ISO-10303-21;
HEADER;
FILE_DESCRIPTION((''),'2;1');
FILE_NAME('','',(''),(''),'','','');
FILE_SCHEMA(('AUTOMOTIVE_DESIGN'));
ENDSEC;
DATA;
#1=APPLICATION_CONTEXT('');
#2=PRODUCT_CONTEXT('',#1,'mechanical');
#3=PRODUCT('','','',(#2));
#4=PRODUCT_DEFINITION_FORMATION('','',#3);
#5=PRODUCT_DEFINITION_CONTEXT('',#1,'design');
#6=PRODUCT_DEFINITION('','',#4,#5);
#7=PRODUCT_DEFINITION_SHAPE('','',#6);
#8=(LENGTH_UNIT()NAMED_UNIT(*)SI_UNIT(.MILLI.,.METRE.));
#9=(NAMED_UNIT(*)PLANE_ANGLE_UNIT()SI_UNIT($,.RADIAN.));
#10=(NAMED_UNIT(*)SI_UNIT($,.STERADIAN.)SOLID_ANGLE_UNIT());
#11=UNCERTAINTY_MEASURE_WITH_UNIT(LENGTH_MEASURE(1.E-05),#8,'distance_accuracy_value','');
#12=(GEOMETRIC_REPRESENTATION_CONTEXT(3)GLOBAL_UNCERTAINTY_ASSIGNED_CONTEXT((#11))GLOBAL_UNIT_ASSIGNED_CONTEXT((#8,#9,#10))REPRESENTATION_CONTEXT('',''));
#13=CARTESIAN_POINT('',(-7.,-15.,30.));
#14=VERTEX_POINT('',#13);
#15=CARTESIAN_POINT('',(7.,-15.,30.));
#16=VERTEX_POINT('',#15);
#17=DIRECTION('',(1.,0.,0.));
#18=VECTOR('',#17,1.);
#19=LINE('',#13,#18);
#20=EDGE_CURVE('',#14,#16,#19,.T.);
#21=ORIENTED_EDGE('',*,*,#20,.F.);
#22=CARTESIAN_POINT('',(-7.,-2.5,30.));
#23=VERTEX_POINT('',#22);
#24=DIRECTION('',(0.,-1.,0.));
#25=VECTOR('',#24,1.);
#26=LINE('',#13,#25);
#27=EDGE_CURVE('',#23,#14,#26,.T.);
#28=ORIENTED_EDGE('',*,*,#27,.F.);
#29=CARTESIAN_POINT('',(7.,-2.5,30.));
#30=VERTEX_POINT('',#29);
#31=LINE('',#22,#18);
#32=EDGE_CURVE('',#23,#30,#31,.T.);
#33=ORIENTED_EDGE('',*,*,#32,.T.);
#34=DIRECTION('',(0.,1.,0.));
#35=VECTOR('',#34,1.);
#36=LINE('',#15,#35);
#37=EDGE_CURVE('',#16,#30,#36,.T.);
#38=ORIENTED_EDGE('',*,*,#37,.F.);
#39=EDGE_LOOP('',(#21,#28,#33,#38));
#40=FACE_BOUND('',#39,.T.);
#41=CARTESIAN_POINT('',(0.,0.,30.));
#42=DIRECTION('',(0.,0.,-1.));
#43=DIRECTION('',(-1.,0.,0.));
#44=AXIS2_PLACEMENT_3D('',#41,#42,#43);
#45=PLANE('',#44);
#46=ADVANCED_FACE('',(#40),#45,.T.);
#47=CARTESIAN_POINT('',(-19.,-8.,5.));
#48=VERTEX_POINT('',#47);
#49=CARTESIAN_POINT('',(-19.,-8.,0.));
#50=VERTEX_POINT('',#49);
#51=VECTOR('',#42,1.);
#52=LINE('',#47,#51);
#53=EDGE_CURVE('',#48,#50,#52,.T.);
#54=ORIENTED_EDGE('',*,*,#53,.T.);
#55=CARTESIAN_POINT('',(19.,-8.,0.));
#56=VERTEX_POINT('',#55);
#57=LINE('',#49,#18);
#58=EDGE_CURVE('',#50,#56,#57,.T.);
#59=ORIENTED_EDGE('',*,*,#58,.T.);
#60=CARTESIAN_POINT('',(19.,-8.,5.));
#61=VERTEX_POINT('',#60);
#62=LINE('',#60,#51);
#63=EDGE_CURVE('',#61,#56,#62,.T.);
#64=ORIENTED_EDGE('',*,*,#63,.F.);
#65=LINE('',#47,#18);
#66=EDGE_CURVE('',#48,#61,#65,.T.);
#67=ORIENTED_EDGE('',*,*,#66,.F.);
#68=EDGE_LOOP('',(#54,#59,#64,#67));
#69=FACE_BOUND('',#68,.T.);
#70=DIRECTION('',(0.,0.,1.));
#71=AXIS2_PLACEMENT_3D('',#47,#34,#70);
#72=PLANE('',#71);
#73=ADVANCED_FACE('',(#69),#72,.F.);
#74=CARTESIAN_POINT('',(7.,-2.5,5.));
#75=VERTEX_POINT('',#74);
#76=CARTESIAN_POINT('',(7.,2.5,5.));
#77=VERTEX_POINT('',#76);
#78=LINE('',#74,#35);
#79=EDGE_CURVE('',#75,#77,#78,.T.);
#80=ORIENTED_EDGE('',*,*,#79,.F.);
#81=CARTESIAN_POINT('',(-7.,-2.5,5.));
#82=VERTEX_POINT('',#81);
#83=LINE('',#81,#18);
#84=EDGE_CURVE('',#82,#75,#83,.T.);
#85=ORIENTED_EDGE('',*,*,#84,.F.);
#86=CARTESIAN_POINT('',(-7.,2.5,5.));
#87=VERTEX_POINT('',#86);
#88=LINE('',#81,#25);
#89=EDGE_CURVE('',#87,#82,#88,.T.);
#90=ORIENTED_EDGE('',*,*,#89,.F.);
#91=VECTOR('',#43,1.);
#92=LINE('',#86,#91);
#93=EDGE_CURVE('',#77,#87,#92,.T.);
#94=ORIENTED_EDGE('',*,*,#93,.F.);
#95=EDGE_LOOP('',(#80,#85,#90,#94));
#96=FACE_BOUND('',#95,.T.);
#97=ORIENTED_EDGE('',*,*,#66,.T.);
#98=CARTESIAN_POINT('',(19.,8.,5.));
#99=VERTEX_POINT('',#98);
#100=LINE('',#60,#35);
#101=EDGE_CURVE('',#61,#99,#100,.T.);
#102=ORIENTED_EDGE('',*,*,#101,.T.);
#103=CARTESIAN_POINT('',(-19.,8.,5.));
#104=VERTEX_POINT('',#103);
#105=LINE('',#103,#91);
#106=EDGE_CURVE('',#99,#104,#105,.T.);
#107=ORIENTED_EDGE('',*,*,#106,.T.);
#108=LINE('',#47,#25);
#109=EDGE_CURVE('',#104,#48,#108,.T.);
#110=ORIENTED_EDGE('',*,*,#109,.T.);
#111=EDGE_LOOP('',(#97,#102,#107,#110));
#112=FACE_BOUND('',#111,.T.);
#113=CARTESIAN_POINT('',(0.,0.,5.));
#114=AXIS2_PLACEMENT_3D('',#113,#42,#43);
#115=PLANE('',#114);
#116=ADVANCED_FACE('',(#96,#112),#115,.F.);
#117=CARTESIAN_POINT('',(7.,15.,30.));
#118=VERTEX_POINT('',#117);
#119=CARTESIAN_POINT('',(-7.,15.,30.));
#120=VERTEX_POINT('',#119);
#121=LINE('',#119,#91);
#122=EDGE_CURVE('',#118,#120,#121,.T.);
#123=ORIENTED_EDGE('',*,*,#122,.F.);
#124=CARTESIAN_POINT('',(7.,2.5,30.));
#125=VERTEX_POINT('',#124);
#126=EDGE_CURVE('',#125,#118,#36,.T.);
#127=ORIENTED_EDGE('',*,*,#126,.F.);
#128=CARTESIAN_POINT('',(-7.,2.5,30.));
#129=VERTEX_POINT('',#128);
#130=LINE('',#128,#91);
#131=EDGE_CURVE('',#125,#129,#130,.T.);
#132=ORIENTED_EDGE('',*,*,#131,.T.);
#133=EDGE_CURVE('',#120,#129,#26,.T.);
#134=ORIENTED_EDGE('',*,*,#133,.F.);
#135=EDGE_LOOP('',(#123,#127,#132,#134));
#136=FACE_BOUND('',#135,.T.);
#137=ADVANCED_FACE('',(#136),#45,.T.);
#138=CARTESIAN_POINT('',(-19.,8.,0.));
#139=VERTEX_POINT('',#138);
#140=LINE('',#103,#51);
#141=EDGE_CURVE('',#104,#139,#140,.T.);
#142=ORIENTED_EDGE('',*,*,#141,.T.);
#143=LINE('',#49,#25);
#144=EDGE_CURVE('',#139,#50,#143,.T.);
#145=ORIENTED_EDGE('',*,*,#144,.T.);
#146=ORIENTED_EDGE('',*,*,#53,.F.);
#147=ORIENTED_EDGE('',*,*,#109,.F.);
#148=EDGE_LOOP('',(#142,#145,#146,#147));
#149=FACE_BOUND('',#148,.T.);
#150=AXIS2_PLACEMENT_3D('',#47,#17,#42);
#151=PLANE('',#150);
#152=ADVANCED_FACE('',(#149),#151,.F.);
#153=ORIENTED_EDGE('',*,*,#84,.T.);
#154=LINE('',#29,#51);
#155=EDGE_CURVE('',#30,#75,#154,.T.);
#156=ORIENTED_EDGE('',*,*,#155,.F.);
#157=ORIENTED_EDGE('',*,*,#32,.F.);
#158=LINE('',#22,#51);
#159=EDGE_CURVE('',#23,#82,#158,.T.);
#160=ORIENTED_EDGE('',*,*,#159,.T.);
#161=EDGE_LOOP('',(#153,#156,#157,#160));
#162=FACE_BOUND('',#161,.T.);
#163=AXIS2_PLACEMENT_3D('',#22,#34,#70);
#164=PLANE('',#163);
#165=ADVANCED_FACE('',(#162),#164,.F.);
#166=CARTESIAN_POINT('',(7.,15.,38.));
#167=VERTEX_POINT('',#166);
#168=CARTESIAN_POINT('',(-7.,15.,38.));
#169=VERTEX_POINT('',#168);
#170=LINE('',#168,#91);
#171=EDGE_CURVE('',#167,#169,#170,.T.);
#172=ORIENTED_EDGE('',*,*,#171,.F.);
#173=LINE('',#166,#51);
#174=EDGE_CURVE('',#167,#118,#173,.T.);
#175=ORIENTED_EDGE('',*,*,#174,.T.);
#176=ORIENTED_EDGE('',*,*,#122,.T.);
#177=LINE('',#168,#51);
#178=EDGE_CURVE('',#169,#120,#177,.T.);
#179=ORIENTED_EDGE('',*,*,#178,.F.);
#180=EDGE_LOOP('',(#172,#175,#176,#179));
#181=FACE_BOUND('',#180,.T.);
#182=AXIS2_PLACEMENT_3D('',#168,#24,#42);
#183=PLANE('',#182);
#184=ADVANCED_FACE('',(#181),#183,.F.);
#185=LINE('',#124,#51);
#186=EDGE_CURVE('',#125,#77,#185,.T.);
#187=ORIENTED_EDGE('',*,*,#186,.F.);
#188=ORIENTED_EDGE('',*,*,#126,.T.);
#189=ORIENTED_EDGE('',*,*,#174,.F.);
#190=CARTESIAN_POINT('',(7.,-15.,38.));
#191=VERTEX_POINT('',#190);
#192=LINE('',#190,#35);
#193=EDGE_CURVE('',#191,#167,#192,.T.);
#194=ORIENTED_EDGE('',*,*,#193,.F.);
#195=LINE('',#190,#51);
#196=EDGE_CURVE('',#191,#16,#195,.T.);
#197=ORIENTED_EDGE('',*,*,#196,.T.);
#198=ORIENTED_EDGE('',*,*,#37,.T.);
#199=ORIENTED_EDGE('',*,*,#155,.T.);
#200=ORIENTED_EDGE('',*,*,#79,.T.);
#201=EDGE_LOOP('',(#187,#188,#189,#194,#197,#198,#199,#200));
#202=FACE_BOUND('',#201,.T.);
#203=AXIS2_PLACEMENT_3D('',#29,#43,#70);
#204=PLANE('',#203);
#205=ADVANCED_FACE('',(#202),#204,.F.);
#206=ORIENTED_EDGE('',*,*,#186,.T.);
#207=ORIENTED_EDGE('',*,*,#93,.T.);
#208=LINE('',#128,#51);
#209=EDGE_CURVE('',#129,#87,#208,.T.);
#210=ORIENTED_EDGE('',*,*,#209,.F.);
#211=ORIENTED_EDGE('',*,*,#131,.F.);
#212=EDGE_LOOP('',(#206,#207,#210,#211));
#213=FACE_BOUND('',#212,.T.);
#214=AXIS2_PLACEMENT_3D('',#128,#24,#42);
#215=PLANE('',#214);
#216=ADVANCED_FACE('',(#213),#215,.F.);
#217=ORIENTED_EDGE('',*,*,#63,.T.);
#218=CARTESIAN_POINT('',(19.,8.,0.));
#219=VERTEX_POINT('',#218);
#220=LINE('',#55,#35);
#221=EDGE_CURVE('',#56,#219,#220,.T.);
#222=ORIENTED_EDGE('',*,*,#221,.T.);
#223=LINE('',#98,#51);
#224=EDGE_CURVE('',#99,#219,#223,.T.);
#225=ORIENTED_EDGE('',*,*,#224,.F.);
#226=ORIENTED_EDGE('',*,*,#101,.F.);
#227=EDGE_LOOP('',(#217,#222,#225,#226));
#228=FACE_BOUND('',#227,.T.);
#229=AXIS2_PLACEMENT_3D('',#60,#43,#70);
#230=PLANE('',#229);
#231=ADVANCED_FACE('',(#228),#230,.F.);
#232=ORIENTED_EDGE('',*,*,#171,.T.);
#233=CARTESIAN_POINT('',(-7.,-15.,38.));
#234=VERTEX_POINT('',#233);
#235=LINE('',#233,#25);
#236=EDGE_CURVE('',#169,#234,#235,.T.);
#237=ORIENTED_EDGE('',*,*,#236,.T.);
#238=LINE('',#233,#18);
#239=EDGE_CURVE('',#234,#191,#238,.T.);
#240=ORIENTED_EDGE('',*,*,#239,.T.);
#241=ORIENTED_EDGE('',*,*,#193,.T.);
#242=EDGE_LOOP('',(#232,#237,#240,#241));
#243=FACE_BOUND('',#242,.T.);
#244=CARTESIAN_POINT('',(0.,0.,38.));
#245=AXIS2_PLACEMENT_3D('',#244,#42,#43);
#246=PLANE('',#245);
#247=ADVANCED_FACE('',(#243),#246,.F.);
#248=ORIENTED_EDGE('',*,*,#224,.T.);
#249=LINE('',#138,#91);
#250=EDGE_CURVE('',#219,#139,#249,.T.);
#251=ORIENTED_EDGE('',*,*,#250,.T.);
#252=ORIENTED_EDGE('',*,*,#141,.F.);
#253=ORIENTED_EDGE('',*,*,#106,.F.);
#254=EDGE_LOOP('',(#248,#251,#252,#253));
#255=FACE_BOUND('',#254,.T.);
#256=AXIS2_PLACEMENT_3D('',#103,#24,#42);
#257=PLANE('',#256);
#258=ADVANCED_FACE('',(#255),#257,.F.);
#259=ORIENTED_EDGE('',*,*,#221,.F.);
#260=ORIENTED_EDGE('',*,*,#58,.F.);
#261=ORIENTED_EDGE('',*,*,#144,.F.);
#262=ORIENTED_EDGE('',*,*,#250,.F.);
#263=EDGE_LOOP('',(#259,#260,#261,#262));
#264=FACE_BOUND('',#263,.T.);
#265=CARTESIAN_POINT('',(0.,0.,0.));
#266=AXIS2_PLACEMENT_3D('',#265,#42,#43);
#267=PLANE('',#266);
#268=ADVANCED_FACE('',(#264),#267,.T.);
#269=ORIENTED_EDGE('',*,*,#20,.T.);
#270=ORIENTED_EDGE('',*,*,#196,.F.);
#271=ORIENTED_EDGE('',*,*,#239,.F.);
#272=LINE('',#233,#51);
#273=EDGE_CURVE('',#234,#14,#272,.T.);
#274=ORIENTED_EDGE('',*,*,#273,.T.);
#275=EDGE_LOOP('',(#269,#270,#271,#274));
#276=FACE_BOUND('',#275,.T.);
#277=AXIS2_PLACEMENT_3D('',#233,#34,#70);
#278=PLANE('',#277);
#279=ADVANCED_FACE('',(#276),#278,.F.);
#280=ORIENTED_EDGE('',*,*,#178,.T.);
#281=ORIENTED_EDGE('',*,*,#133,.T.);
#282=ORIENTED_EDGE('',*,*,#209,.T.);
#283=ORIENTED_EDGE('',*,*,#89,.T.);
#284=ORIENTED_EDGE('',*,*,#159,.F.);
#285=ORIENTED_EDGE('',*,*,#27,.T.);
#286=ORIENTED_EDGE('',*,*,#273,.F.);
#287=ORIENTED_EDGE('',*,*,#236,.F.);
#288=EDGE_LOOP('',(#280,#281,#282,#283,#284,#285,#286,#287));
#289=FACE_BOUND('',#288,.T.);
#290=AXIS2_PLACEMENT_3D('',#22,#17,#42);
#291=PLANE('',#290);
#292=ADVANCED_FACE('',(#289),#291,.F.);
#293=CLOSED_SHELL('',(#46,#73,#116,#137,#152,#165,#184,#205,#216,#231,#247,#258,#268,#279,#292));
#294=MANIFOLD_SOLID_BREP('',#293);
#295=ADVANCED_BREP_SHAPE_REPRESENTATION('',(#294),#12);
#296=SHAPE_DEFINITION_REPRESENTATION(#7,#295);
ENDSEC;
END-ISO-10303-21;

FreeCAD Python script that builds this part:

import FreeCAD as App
import Part
import Sketcher

V = App.Vector
Q = App.Units.Quantity

doc = App.newDocument("Part")
params = doc.addObject("Spreadsheet::Sheet", "Params")
for row, (alias, value) in enumerate([
    ("sketch1_width", "38 mm"),
    ("sketch1_height", "16 mm"),
    ("pad1_length", "5 mm"),
    ("sketch2_width", "14 mm"),
    ("sketch2_height", "5 mm"),
    ("pad2_length", "25 mm"),
    ("sketch3_width", "14 mm"),
    ("sketch3_height", "30 mm"),
    ("pad3_length", "8 mm"),
], start=1):
    params.set(f"A{row}", alias)
    params.set(f"B{row}", "=" + value)
    params.setAlias(f"B{row}", alias)

body = doc.addObject("PartDesign::Body", "Body")

# Sketch on XY plane
sketch1 = body.newObject("Sketcher::SketchObject", "Sketch")
sketch1.AttachmentSupport = (doc.getObject("XY_Plane"), [""])
sketch1.MapMode = "FlatFace"
sketch1.addGeometry([
    Part.LineSegment(V(-19, 8, 0), V(-19, -8, 0)),
    Part.LineSegment(V(-19, -8, 0), V(19, -8, 0)),
    Part.LineSegment(V(19, -8, 0), V(19, 8, 0)),
    Part.LineSegment(V(19, 8, 0), V(-19, 8, 0)),
], False)
sketch1.addConstraint([
    Sketcher.Constraint("Coincident", 0, 2, 1, 1),
    Sketcher.Constraint("Coincident", 1, 2, 2, 1),
    Sketcher.Constraint("Coincident", 2, 2, 3, 1),
    Sketcher.Constraint("Coincident", 3, 2, 0, 1),
    Sketcher.Constraint("Vertical", 0),
    Sketcher.Constraint("Horizontal", 1),
    Sketcher.Constraint("Vertical", 2),
    Sketcher.Constraint("Horizontal", 3),
    Sketcher.Constraint("Symmetric", 0, 2, 2, 2, -1, 1),
    Sketcher.Constraint("DistanceX", 1, 1, 1, 2, Q("38 mm")),
    Sketcher.Constraint("DistanceY", 0, 2, 0, 1, Q("16 mm")),
])
sketch1.setExpression("Constraints[9]", "Params.sketch1_width")
sketch1.setExpression("Constraints[10]", "Params.sketch1_height")
pad1 = body.newObject("PartDesign::Pad", "Pad")
pad1.Profile = sketch1
pad1.setExpression("Length", "Params.pad1_length")

# Sketch on XY plane
sketch2 = body.newObject("Sketcher::SketchObject", "Sketch001")
sketch2.AttachmentSupport = (doc.getObject("XY_Plane"), [""])
sketch2.MapMode = "FlatFace"
sketch2.AttachmentOffset = App.Placement(V(0, 0, 5), App.Rotation())
sketch2.addGeometry([
    Part.LineSegment(V(-7, 2, 0), V(-7, -2, 0)),
    Part.LineSegment(V(-7, -2, 0), V(7, -2, 0)),
    Part.LineSegment(V(7, -2, 0), V(7, 2, 0)),
    Part.LineSegment(V(7, 2, 0), V(-7, 2, 0)),
], False)
sketch2.addConstraint([
    Sketcher.Constraint("Coincident", 0, 2, 1, 1),
    Sketcher.Constraint("Coincident", 1, 2, 2, 1),
    Sketcher.Constraint("Coincident", 2, 2, 3, 1),
    Sketcher.Constraint("Coincident", 3, 2, 0, 1),
    Sketcher.Constraint("Vertical", 0),
    Sketcher.Constraint("Horizontal", 1),
    Sketcher.Constraint("Vertical", 2),
    Sketcher.Constraint("Horizontal", 3),
    Sketcher.Constraint("Symmetric", 0, 2, 2, 2, -1, 1),
    Sketcher.Constraint("DistanceX", 1, 1, 1, 2, Q("14 mm")),
    Sketcher.Constraint("DistanceY", 0, 2, 0, 1, Q("5 mm")),
])
sketch2.setExpression("Constraints[9]", "Params.sketch2_width")
sketch2.setExpression("Constraints[10]", "Params.sketch2_height")
pad2 = body.newObject("PartDesign::Pad", "Pad001")
pad2.Profile = sketch2
pad2.setExpression("Length", "Params.pad2_length")

# Sketch on XY plane
sketch3 = body.newObject("Sketcher::SketchObject", "Sketch002")
sketch3.AttachmentSupport = (doc.getObject("XY_Plane"), [""])
sketch3.MapMode = "FlatFace"
sketch3.AttachmentOffset = App.Placement(V(0, 0, 30), App.Rotation())
sketch3.addGeometry([
    Part.LineSegment(V(-7, 15, 0), V(-7, -15, 0)),
    Part.LineSegment(V(-7, -15, 0), V(7, -15, 0)),
    Part.LineSegment(V(7, -15, 0), V(7, 15, 0)),
    Part.LineSegment(V(7, 15, 0), V(-7, 15, 0)),
], False)
sketch3.addConstraint([
    Sketcher.Constraint("Coincident", 0, 2, 1, 1),
    Sketcher.Constraint("Coincident", 1, 2, 2, 1),
    Sketcher.Constraint("Coincident", 2, 2, 3, 1),
    Sketcher.Constraint("Coincident", 3, 2, 0, 1),
    Sketcher.Constraint("Vertical", 0),
    Sketcher.Constraint("Horizontal", 1),
    Sketcher.Constraint("Vertical", 2),
    Sketcher.Constraint("Horizontal", 3),
    Sketcher.Constraint("Symmetric", 0, 2, 2, 2, -1, 1),
    Sketcher.Constraint("DistanceX", 1, 1, 1, 2, Q("14 mm")),
    Sketcher.Constraint("DistanceY", 0, 2, 0, 1, Q("30 mm")),
])
sketch3.setExpression("Constraints[9]", "Params.sketch3_width")
sketch3.setExpression("Constraints[10]", "Params.sketch3_height")
pad3 = body.newObject("PartDesign::Pad", "Pad002")
pad3.Profile = sketch3
pad3.setExpression("Length", "Params.pad3_length")

doc.recompute()
